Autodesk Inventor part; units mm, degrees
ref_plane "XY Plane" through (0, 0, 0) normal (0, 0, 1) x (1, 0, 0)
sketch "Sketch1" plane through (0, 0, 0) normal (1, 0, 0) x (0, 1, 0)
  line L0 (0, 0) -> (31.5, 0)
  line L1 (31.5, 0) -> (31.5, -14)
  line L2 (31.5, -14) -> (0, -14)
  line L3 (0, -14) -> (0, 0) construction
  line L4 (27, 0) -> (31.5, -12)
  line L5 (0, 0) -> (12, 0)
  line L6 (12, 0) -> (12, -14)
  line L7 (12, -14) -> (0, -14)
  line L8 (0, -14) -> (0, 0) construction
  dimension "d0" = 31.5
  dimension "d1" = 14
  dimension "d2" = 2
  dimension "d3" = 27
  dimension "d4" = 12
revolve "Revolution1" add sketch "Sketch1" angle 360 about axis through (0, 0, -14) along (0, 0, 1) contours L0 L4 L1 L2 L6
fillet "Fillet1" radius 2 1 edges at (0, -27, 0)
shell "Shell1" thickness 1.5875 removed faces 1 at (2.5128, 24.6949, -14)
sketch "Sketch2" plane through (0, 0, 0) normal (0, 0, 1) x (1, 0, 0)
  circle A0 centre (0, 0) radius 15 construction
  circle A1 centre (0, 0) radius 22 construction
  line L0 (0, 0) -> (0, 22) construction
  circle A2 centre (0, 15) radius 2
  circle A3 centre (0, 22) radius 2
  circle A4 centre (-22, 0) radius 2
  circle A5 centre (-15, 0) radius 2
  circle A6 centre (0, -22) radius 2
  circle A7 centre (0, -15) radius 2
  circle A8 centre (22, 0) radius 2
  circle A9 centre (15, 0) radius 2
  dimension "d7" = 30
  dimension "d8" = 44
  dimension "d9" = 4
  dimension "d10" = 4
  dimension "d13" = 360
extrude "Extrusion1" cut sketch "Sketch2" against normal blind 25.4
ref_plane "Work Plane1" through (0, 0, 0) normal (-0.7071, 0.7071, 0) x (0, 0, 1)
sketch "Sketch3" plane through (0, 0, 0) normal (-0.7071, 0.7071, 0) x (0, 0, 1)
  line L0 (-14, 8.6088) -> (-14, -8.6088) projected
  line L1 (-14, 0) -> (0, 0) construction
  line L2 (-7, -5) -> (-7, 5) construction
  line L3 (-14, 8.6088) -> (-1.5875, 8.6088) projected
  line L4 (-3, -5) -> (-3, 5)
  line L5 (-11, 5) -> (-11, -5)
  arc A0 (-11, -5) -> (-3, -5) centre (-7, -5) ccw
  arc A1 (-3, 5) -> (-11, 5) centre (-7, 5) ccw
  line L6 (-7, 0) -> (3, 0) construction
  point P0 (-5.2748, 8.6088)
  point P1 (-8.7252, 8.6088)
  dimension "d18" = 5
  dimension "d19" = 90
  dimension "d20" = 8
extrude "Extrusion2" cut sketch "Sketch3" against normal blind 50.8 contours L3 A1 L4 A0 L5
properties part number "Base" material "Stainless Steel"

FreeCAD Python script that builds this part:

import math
import FreeCAD as App
import Part
import Sketcher
from FreeCAD import Vector


def edges_at(feature, points):
    """Names of the edges that pass closest to the given points."""
    edges = feature.Shape.Edges
    near = lambda p: min(range(len(edges)), key=lambda i: edges[i].distToShape(Part.Vertex(*p))[0])
    return sorted({f"Edge{near(p) + 1}" for p in points})


def faces_at(feature, points):
    """Names of the faces that lie closest to the given points."""
    faces = feature.Shape.Faces
    near = lambda p: min(range(len(faces)), key=lambda i: faces[i].distToShape(Part.Vertex(*p))[0])
    return sorted({f"Face{near(p) + 1}" for p in points})


def add_polygon(sketch, points):
    """Adds a closed chain of lines whose ends are joined by coincident constraints."""
    first, n = sketch.GeometryCount, len(points)
    for a, b in zip(points, points[1:] + points[:1]):
        sketch.addGeometry(Part.LineSegment(App.Vector(*a, 0), App.Vector(*b, 0)), False)
    for i in range(n):
        sketch.addConstraint(Sketcher.Constraint("Coincident", first + i, 2, first + (i + 1) % n, 1))

doc = App.newDocument("Part")
body = doc.addObject("PartDesign::Body", "Body")

sketch1 = body.newObject("Sketcher::SketchObject", "Sketch")
sketch1.AttachmentSupport = (doc.getObject("YZ_Plane"), [""])
sketch1.MapMode = "FlatFace"
add_polygon(sketch1, [(27, 0), (12, 0), (12, -14), (31.5, -14), (31.5, -12)])
sketch1.addConstraint(Sketcher.Constraint("Horizontal", 0))
sketch1.addConstraint(Sketcher.Constraint("Vertical", 1))
sketch1.addConstraint(Sketcher.Constraint("Horizontal", 2))
sketch1.addConstraint(Sketcher.Constraint("Vertical", 3))
sketch1.addConstraint(Sketcher.Constraint("PointOnObject", 0, 2, -1))
sketch1.addConstraint(Sketcher.Constraint("DistanceY", 1, 2, 1, 1, 14.0))
sketch1.addConstraint(Sketcher.Constraint("DistanceY", 3, 1, 3, 2, 2.0))
sketch1.addConstraint(Sketcher.Constraint("DistanceX", -1, 1, 0, 2, 12.0))
sketch1.addConstraint(Sketcher.Constraint("DistanceX", -1, 1, 4, 2, 27.0))
sketch1.addConstraint(Sketcher.Constraint("DistanceX", -1, 1, 2, 2, 31.5))
revolution = body.newObject("PartDesign::Revolution", "Revolution")
revolution.Profile = sketch1
revolution.ReferenceAxis = (sketch1, ["V_Axis"])
revolution.Angle = 360
doc.recompute()

fillet = body.newObject("PartDesign::Fillet", "Fillet")
fillet.Base = (revolution, edges_at(revolution, [(0, -27, 0)]))
fillet.Radius = 2
doc.recompute()

thickness = body.newObject("PartDesign::Thickness", "Thickness")
thickness.Base = (fillet, faces_at(fillet, [(2.513, 24.695, -14)]))
thickness.Value = 1.5875
thickness.Reversed = True
thickness.Join = "Intersection"

sketch2 = body.newObject("Sketcher::SketchObject", "Sketch001")
sketch2.AttachmentSupport = (doc.getObject("XY_Plane"), [""])
sketch2.MapMode = "FlatFace"
sketch2.addGeometry(Part.Circle(Vector(0, 15, 0), Vector(0, 0, 1), 2), False)
sketch2.addGeometry(Part.Circle(Vector(0, 22, 0), Vector(0, 0, 1), 2), False)
sketch2.addGeometry(Part.Circle(Vector(-22, 0, 0), Vector(0, 0, 1), 2), False)
sketch2.addGeometry(Part.Circle(Vector(-15, 0, 0), Vector(0, 0, 1), 2), False)
sketch2.addGeometry(Part.Circle(Vector(0, -22, 0), Vector(0, 0, 1), 2), False)
sketch2.addGeometry(Part.Circle(Vector(0, -15, 0), Vector(0, 0, 1), 2), False)
sketch2.addGeometry(Part.Circle(Vector(22, 0, 0), Vector(0, 0, 1), 2), False)
sketch2.addGeometry(Part.Circle(Vector(15, 0, 0), Vector(0, 0, 1), 2), False)
sketch2.addConstraint(Sketcher.Constraint("Equal", 0, 1))
sketch2.addConstraint(Sketcher.Constraint("Equal", 1, 2))
sketch2.addConstraint(Sketcher.Constraint("Equal", 2, 3))
sketch2.addConstraint(Sketcher.Constraint("Equal", 3, 4))
sketch2.addConstraint(Sketcher.Constraint("Equal", 4, 5))
sketch2.addConstraint(Sketcher.Constraint("Equal", 5, 6))
sketch2.addConstraint(Sketcher.Constraint("Equal", 6, 7))
sketch2.addConstraint(Sketcher.Constraint("Symmetric", 1, 3, 4, 3, -1, 1))
sketch2.addConstraint(Sketcher.Constraint("Symmetric", 0, 3, 5, 3, -1, 1))
sketch2.addConstraint(Sketcher.Constraint("Symmetric", 2, 3, 6, 3, -1, 1))
sketch2.addConstraint(Sketcher.Constraint("Symmetric", 3, 3, 7, 3, -1, 1))
sketch2.addConstraint(Sketcher.Constraint("PointOnObject", 0, 3, -2))
sketch2.addConstraint(Sketcher.Constraint("PointOnObject", 1, 3, -2))
sketch2.addConstraint(Sketcher.Constraint("PointOnObject", 2, 3, -1))
sketch2.addConstraint(Sketcher.Constraint("PointOnObject", 3, 3, -1))
sketch2.addConstraint(Sketcher.Constraint("Diameter", 0, 4.0))
sketch2.addConstraint(Sketcher.Constraint("DistanceY", 4, 3, 1, 3, 44.0))
sketch2.addConstraint(Sketcher.Constraint("DistanceY", 5, 3, 0, 3, 30.0))
sketch2.addConstraint(Sketcher.Constraint("DistanceX", 2, 3, -1, 1, 22.0))
sketch2.addConstraint(Sketcher.Constraint("DistanceX", 3, 3, -1, 1, 15.0))
pocket1 = body.newObject("PartDesign::Pocket", "Pocket")
pocket1.Profile = sketch2
pocket1.Length = 25.4

sketch3 = body.newObject("Sketcher::SketchObject", "Sketch002")
sketch3.Placement = App.Placement(Vector(0, 0, 0), App.Rotation(Vector(0, 0, 1), Vector(0.707106781, 0.707106781, 0), Vector(-0.707106781, 0.707106781, 0), "ZXY"))
sketch3.addGeometry(Part.LineSegment(Vector(-5.3, 8.6, 0), Vector(-8.7, 8.6, 0)), False)
sketch3.addGeometry(Part.ArcOfCircle(Part.Circle(Vector(-7, 5, 0), Vector(0, 0, 1), 4), math.radians(116), math.radians(180)), False)
sketch3.addGeometry(Part.LineSegment(Vector(-11, 5, 0), Vector(-11, -5, 0)), False)
sketch3.addGeometry(Part.ArcOfCircle(Part.Circle(Vector(-7, -5, 0), Vector(0, 0, 1), 4), math.radians(180), math.radians(360)), False)
sketch3.addGeometry(Part.LineSegment(Vector(-3, -5, 0), Vector(-3, 5, 0)), False)
sketch3.addGeometry(Part.ArcOfCircle(Part.Circle(Vector(-7, 5, 0), Vector(0, 0, 1), 4), math.radians(0), math.radians(64)), False)
sketch3.addConstraint(Sketcher.Constraint("Coincident", 0, 2, 1, 1))
sketch3.addConstraint(Sketcher.Constraint("Tangent", 1, 2, 2, 1))
sketch3.addConstraint(Sketcher.Constraint("Tangent", 2, 2, 3, 1))
sketch3.addConstraint(Sketcher.Constraint("Tangent", 3, 2, 4, 1))
sketch3.addConstraint(Sketcher.Constraint("Tangent", 4, 2, 5, 1))
sketch3.addConstraint(Sketcher.Constraint("Coincident", 5, 2, 0, 1))
sketch3.addConstraint(Sketcher.Constraint("Horizontal", 0))
sketch3.addConstraint(Sketcher.Constraint("Vertical", 2))
sketch3.addConstraint(Sketcher.Constraint("Vertical", 4))
sketch3.addConstraint(Sketcher.Constraint("Coincident", 5, 3, 1, 3))
sketch3.addConstraint(Sketcher.Constraint("Equal", 1, 3))
sketch3.addConstraint(Sketcher.Constraint("Radius", 1, 4.0))
sketch3.addConstraint(Sketcher.Constraint("DistanceY", -1, 1, 1, 3, 5.0))
sketch3.addConstraint(Sketcher.Constraint("DistanceY", 3, 3, -1, 1, 5.0))
sketch3.addConstraint(Sketcher.Constraint("DistanceX", 1, 3, -1, 1, 7.0))
sketch3.addConstraint(Sketcher.Constraint("DistanceX", 0, 2, 0, 1, 3.4505))
pocket2 = body.newObject("PartDesign::Pocket", "Pocket001")
pocket2.Profile = sketch3
pocket2.Length = 50.8

doc.recompute()
